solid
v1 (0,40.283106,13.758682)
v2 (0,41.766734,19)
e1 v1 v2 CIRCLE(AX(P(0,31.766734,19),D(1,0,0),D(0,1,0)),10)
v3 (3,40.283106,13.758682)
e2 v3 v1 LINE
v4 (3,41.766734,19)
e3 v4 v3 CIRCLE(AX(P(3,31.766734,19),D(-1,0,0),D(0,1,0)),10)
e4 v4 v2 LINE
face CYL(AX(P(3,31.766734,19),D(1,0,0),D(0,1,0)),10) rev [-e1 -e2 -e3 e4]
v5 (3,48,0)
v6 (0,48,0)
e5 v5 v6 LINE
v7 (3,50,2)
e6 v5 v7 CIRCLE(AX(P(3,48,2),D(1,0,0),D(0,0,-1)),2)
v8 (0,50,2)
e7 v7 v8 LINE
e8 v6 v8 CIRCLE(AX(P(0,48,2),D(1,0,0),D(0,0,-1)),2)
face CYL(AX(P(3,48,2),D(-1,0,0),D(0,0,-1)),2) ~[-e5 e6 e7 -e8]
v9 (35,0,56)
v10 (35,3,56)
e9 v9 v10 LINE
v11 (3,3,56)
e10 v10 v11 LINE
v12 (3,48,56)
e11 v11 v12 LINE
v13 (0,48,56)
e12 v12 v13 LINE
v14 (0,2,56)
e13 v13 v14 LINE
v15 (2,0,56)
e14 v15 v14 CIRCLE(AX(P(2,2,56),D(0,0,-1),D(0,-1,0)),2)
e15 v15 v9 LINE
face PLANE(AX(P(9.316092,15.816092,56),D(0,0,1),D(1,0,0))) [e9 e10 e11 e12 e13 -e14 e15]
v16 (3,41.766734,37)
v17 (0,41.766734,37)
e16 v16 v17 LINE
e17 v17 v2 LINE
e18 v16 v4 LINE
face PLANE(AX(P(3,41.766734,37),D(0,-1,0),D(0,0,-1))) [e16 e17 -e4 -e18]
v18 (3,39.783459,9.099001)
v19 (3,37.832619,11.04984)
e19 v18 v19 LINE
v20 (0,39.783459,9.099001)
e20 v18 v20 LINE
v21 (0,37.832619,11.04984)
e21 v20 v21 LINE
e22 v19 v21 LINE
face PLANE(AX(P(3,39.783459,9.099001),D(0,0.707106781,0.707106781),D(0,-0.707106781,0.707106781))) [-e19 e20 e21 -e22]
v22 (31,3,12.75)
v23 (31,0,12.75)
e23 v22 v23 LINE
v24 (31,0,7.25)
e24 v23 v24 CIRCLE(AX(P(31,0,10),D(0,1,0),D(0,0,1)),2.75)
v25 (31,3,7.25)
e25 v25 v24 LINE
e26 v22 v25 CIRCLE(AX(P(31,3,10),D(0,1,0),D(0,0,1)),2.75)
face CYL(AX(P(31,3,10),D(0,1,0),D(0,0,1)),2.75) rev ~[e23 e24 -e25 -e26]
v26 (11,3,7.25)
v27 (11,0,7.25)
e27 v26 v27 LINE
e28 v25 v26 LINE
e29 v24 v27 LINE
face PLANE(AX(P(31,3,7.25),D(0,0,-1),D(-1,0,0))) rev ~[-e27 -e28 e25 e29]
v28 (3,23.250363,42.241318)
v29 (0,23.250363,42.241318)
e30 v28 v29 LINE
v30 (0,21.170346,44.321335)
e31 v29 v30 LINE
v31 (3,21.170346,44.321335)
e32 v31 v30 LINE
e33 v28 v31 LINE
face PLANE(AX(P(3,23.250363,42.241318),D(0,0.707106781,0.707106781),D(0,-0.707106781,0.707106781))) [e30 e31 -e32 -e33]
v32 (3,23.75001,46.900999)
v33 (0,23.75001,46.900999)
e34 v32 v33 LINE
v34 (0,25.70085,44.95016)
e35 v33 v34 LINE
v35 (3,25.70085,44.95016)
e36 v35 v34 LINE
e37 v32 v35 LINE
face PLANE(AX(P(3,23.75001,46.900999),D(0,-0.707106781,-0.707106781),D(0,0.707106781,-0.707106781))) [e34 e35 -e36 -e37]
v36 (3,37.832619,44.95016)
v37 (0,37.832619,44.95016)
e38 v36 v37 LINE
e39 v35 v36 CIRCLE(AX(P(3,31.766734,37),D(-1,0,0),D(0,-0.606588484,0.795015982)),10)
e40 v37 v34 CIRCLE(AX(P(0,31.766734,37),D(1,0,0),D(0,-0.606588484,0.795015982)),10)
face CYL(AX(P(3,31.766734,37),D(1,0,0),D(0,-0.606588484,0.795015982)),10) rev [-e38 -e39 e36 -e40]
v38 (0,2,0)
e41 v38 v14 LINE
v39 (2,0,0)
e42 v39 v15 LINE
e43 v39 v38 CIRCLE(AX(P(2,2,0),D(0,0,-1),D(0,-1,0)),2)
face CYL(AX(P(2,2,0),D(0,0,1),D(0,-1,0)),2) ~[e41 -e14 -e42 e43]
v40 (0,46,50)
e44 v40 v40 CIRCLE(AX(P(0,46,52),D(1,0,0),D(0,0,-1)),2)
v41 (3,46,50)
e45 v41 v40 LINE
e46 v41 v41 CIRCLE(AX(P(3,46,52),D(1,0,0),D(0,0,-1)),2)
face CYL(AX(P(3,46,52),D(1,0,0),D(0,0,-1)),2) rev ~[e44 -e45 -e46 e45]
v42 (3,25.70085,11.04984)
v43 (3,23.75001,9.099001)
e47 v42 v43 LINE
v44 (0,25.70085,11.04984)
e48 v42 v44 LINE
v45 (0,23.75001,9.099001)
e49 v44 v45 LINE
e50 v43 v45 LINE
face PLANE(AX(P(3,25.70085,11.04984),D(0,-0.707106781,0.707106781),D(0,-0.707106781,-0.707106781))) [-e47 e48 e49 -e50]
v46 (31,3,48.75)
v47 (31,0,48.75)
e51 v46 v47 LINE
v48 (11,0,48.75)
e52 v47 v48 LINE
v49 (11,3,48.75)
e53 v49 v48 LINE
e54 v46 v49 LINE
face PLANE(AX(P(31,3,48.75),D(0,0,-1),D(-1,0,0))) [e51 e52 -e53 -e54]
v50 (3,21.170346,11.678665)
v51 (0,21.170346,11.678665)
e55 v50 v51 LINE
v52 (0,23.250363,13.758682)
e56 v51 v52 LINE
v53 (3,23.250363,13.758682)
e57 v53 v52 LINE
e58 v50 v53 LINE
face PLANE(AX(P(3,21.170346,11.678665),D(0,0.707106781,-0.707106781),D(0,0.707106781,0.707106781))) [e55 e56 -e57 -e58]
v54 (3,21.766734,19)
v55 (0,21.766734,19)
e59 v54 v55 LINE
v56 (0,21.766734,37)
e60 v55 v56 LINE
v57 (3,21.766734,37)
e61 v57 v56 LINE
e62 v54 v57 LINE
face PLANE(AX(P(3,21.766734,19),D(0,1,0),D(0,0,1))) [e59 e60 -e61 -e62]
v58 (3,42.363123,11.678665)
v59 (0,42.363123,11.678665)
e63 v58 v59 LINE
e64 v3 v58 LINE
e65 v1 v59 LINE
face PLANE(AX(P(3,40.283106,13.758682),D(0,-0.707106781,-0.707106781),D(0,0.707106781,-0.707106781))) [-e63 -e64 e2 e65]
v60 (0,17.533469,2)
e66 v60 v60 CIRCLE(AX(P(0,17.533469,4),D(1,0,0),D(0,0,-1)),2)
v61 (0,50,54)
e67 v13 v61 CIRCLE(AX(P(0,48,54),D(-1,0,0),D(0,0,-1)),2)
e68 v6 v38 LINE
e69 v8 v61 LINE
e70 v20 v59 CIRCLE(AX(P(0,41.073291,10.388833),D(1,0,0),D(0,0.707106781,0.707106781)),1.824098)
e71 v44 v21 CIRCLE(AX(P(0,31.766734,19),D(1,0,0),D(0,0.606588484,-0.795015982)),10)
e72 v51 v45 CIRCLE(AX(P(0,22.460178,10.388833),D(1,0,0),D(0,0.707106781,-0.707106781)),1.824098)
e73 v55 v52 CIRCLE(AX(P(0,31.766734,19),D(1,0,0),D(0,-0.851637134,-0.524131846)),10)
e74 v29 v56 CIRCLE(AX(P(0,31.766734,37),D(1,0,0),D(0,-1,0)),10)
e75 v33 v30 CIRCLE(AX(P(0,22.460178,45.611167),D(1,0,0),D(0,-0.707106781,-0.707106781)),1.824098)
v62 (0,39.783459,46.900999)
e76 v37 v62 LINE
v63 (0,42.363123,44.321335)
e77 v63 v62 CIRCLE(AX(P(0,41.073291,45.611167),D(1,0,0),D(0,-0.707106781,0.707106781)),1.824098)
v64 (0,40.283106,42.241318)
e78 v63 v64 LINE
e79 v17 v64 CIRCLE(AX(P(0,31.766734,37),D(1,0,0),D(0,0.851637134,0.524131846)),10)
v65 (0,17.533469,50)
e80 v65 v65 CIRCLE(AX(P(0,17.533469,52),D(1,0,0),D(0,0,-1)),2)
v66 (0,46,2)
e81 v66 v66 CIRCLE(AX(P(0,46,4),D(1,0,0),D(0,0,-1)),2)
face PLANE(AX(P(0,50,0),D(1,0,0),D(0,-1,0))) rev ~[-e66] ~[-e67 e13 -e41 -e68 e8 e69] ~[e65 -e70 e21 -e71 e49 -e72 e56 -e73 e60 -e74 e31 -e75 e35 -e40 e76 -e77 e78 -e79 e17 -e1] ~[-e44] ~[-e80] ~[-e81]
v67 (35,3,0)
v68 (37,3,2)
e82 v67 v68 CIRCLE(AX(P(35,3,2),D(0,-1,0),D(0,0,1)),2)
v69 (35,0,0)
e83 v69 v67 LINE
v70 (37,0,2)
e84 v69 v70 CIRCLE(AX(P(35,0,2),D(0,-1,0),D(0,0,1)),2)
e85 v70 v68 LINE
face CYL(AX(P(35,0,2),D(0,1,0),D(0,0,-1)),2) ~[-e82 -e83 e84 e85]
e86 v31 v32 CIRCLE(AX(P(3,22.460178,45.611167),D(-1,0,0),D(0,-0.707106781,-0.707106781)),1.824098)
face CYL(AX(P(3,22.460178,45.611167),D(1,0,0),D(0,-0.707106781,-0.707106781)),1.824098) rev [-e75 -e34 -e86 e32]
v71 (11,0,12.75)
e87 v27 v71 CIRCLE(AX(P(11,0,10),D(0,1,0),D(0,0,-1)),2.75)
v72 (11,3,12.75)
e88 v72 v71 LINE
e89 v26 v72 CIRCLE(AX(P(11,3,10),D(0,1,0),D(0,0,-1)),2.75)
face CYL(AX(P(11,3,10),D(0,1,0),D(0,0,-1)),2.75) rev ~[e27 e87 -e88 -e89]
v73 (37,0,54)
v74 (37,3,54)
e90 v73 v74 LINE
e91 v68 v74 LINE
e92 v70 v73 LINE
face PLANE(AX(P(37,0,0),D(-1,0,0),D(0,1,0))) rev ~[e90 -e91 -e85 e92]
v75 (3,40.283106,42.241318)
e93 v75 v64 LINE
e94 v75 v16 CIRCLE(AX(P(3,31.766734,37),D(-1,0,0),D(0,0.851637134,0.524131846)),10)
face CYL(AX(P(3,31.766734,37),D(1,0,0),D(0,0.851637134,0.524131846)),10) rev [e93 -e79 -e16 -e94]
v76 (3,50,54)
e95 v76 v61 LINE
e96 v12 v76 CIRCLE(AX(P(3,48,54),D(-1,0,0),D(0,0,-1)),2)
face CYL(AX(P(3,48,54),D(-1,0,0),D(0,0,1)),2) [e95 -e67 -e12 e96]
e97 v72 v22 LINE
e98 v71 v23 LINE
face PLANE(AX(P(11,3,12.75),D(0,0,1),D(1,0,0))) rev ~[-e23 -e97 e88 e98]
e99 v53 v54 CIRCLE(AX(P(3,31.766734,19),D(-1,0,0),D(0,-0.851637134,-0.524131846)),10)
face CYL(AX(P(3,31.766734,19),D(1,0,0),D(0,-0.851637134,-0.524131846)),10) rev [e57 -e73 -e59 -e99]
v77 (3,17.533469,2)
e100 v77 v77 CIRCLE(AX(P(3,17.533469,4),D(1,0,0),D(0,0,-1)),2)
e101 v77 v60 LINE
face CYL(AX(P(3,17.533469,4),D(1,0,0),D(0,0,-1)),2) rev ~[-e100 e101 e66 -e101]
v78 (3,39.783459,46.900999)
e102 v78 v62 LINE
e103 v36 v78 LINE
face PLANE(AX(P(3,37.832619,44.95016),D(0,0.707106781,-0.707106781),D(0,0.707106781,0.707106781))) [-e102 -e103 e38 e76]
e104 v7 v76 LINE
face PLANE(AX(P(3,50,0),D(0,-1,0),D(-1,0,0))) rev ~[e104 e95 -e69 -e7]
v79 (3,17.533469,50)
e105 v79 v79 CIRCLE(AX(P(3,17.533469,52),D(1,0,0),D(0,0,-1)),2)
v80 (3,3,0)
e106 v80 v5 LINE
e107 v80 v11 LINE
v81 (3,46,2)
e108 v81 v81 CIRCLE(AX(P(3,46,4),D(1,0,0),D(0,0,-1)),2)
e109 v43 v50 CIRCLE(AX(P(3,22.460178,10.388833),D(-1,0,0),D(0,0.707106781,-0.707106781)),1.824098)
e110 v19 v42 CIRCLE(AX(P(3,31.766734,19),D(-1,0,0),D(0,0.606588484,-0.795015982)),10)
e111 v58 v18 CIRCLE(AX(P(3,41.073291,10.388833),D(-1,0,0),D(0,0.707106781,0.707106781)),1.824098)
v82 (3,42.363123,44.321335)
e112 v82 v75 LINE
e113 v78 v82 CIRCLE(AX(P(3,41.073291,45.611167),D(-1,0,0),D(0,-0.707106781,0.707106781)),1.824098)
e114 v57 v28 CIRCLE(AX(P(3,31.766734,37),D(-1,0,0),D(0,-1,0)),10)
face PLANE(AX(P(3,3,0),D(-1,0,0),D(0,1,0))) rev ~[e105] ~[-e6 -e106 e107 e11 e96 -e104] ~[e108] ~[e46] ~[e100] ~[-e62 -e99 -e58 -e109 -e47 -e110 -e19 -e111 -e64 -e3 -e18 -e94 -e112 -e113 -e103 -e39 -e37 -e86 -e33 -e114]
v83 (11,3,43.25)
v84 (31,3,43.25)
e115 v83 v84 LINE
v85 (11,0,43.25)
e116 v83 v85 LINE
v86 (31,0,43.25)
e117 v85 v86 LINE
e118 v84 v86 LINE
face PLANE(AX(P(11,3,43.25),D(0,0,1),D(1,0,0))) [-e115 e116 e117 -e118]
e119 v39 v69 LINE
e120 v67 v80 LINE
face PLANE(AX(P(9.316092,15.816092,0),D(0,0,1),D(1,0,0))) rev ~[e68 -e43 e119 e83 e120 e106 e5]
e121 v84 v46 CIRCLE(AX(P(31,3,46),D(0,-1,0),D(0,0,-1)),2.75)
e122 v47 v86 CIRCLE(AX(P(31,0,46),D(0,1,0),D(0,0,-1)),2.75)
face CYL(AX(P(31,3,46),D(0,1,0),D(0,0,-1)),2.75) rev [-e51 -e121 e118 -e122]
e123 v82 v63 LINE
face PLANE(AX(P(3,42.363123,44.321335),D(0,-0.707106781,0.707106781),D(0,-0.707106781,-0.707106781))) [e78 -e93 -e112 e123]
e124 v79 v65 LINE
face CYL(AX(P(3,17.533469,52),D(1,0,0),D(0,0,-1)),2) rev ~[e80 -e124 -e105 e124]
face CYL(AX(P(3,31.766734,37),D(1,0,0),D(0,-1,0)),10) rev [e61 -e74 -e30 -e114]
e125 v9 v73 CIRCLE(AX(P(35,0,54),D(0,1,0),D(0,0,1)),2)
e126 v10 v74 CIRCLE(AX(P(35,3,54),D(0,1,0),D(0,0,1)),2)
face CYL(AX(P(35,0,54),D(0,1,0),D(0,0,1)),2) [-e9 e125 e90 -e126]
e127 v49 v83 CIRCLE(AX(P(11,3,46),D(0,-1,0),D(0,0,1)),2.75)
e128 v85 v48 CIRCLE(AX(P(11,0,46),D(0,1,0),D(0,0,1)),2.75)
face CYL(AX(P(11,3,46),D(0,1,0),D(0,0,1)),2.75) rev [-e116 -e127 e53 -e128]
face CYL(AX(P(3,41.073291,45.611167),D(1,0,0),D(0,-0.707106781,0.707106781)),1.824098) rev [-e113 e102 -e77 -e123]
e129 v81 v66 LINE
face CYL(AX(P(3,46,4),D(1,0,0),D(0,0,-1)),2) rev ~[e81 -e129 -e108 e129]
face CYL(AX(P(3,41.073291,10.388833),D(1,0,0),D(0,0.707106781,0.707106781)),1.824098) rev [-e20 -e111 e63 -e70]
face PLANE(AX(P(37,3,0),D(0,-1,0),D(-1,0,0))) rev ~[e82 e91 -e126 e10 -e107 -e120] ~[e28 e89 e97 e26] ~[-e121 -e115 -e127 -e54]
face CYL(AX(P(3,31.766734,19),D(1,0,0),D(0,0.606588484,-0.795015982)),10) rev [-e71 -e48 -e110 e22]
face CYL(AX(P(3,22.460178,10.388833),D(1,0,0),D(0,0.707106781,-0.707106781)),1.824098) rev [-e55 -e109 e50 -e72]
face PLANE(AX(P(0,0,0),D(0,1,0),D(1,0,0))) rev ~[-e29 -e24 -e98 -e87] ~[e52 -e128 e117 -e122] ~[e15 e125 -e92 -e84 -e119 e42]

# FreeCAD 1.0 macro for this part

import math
import FreeCAD as App
import Part
import Sketcher
Q = App.Units.Quantity


def edges_at(feature, points):
    """Names of the edges that pass closest to the given points."""
    edges = feature.Shape.Edges
    near = lambda p: min(range(len(edges)), key=lambda i: edges[i].distToShape(Part.Vertex(*p))[0])
    return sorted({f"Edge{near(p) + 1}" for p in points})


def add_polygon(sketch, points):
    """Adds a closed chain of lines whose ends are joined by coincident constraints."""
    first, n = sketch.GeometryCount, len(points)
    for a, b in zip(points, points[1:] + points[:1]):
        sketch.addGeometry(Part.LineSegment(App.Vector(*a, 0), App.Vector(*b, 0)), False)
    for i in range(n):
        sketch.addConstraint(Sketcher.Constraint("Coincident", first + i, 2, first + (i + 1) % n, 1))

doc = App.newDocument("Part")
body = doc.addObject("PartDesign::Body", "Body")

sketch1 = body.newObject("Sketcher::SketchObject", "Sketch")
sketch1.AttachmentSupport = (doc.getObject("XY_Plane"), [""])
sketch1.MapMode = "FlatFace"
add_polygon(sketch1, [(0, 0), (37, 0), (37, 3), (3, 3), (3, 50), (0, 50)])
sketch1.addConstraint([
    Sketcher.Constraint("Horizontal", 0),
    Sketcher.Constraint("Vertical", 1),
    Sketcher.Constraint("Horizontal", 2),
    Sketcher.Constraint("Vertical", 3),
    Sketcher.Constraint("Horizontal", 4),
    Sketcher.Constraint("Vertical", 5),
    Sketcher.Constraint("Coincident", 5, 2, -1, 1),
    Sketcher.Constraint("Equal", 4, 1),
    Sketcher.Constraint("DistanceX", 0, 1, 0, 2, Q("37 mm")),
    Sketcher.Constraint("DistanceX", 2, 2, 2, 1, Q("34 mm")),
    Sketcher.Constraint("DistanceY", 3, 1, 3, 2, Q("47 mm")),
])
pad1 = body.newObject("PartDesign::Pad", "Pad")
pad1.Profile = sketch1
pad1.Length = 56

sketch2 = body.newObject("Sketcher::SketchObject", "Sketch001")
sketch2.AttachmentSupport = (doc.getObject("XZ_Plane"), [""])
sketch2.MapMode = "FlatFace"
sketch2.AttachmentOffset = App.Placement(App.Vector(0, 0, -3), App.Rotation())
sketch2.addGeometry([
    Part.LineSegment(App.Vector(11, 12.75, 0), App.Vector(31, 12.75, 0)),
    Part.ArcOfCircle(Part.Circle(App.Vector(31, 10, 0), App.Vector(0, 0, 1), 2.75), math.radians(-90), math.radians(90)),
    Part.LineSegment(App.Vector(31, 7.25, 0), App.Vector(11, 7.25, 0)),
    Part.ArcOfCircle(Part.Circle(App.Vector(11, 10, 0), App.Vector(0, 0, 1), 2.75), math.radians(90), math.radians(270)),
    Part.LineSegment(App.Vector(31, 43.25, 0), App.Vector(11, 43.25, 0)),
    Part.ArcOfCircle(Part.Circle(App.Vector(11, 46, 0), App.Vector(0, 0, 1), 2.75), math.radians(90), math.radians(270)),
    Part.LineSegment(App.Vector(11, 48.75, 0), App.Vector(31, 48.75, 0)),
    Part.ArcOfCircle(Part.Circle(App.Vector(31, 46, 0), App.Vector(0, 0, 1), 2.75), math.radians(-90), math.radians(90)),
], False)
sketch2.addConstraint([
    Sketcher.Constraint("Tangent", 0, 2, 1, 2),
    Sketcher.Constraint("Tangent", 1, 1, 2, 1),
    Sketcher.Constraint("Tangent", 2, 2, 3, 2),
    Sketcher.Constraint("Tangent", 3, 1, 0, 1),
    Sketcher.Constraint("Tangent", 4, 2, 5, 2),
    Sketcher.Constraint("Tangent", 5, 1, 6, 1),
    Sketcher.Constraint("Tangent", 6, 2, 7, 2),
    Sketcher.Constraint("Tangent", 7, 1, 4, 1),
    Sketcher.Constraint("Horizontal", 0),
    Sketcher.Constraint("Horizontal", 2),
    Sketcher.Constraint("Horizontal", 4),
    Sketcher.Constraint("Horizontal", 6),
    Sketcher.Constraint("Equal", 3, 5),
    Sketcher.Constraint("Vertical", 3, 3, 5, 3),
    Sketcher.Constraint("Vertical", 1, 3, 7, 3),
    Sketcher.Constraint("DistanceX", 0, 1, 0, 2, Q("20 mm")),
    Sketcher.Constraint("Radius", 1, Q("2.75 mm")),
    Sketcher.Constraint("DistanceX", -1, 1, 1, 3, Q("31 mm")),
    Sketcher.Constraint("DistanceY", -1, 1, 1, 3, Q("10 mm")),
    Sketcher.Constraint("DistanceY", -1, 1, 5, 3, Q("46 mm")),
])
pocket1 = body.newObject("PartDesign::Pocket", "Pocket")
pocket1.Profile = sketch2
pocket1.Length = 56
pocket1.Reversed = True

sketch3 = body.newObject("Sketcher::SketchObject", "Sketch002")
sketch3.AttachmentSupport = (doc.getObject("YZ_Plane"), [""])
sketch3.MapMode = "FlatFace"
sketch3.AttachmentOffset = App.Placement(App.Vector(0, 0, 3), App.Rotation())
sketch3.addGeometry([
    Part.Circle(App.Vector(46, 52, 0), App.Vector(0, 0, 1), 2),
    Part.Circle(App.Vector(46, 4, 0), App.Vector(0, 0, 1), 2),
    Part.Circle(App.Vector(17.533469, 4, 0), App.Vector(0, 0, 1), 2),
    Part.Circle(App.Vector(17.533469, 52, 0), App.Vector(0, 0, 1), 2),
    Part.LineSegment(App.Vector(41.766734, 19, 0), App.Vector(41.766734, 37, 0)),
    Part.ArcOfCircle(Part.Circle(App.Vector(31.766734, 37, 0), App.Vector(0, 0, 1), 10), math.radians(0), math.radians(31.609818)),
    Part.LineSegment(App.Vector(40.283106, 42.241318, 0), App.Vector(42.363123, 44.321335, 0)),
    Part.ArcOfCircle(Part.Circle(App.Vector(41.073291, 45.611167, 0), App.Vector(0, 0, 1), 1.824098), math.radians(-45), math.radians(135)),
    Part.LineSegment(App.Vector(39.783459, 46.900999, 0), App.Vector(37.832619, 44.95016, 0)),
    Part.ArcOfCircle(Part.Circle(App.Vector(31.766734, 37, 0), App.Vector(0, 0, 1), 10), math.radians(52.656765), math.radians(127.343235)),
    Part.LineSegment(App.Vector(25.70085, 44.95016, 0), App.Vector(23.75001, 46.900999, 0)),
    Part.ArcOfCircle(Part.Circle(App.Vector(22.460178, 45.611167, 0), App.Vector(0, 0, 1), 1.824098), math.radians(45), math.radians(225)),
    Part.LineSegment(App.Vector(21.170346, 44.321335, 0), App.Vector(23.250363, 42.241318, 0)),
    Part.ArcOfCircle(Part.Circle(App.Vector(31.766734, 37, 0), App.Vector(0, 0, 1), 10), math.radians(148.390182), math.radians(180)),
    Part.LineSegment(App.Vector(21.766734, 37, 0), App.Vector(21.766734, 19, 0)),
    Part.ArcOfCircle(Part.Circle(App.Vector(31.766734, 19, 0), App.Vector(0, 0, 1), 10), math.radians(-180), math.radians(-148.390182)),
    Part.LineSegment(App.Vector(23.250363, 13.758682, 0), App.Vector(21.170346, 11.678665, 0)),
    Part.ArcOfCircle(Part.Circle(App.Vector(22.460178, 10.388833, 0), App.Vector(0, 0, 1), 1.824098), math.radians(135), math.radians(315)),
    Part.LineSegment(App.Vector(23.75001, 9.099001, 0), App.Vector(25.70085, 11.04984, 0)),
    Part.ArcOfCircle(Part.Circle(App.Vector(31.766734, 19, 0), App.Vector(0, 0, 1), 10), math.radians(-127.343235), math.radians(-52.656765)),
    Part.LineSegment(App.Vector(37.832619, 11.04984, 0), App.Vector(39.783459, 9.099001, 0)),
    Part.ArcOfCircle(Part.Circle(App.Vector(41.073291, 10.388833, 0), App.Vector(0, 0, 1), 1.824098), math.radians(-135), math.radians(45)),
    Part.LineSegment(App.Vector(42.363123, 11.678665, 0), App.Vector(40.283106, 13.758682, 0)),
    Part.ArcOfCircle(Part.Circle(App.Vector(31.766734, 19, 0), App.Vector(0, 0, 1), 10), math.radians(-31.609818), math.radians(0)),
], False)
sketch3.addConstraint([
    Sketcher.Constraint("Tangent", 4, 2, 5, 1),
    Sketcher.Constraint("Coincident", 5, 2, 6, 1),
    Sketcher.Constraint("Tangent", 6, 2, 7, 1),
    Sketcher.Constraint("Tangent", 7, 2, 8, 1),
    Sketcher.Constraint("Coincident", 8, 2, 9, 1),
    Sketcher.Constraint("Coincident", 9, 2, 10, 1),
    Sketcher.Constraint("Tangent", 10, 2, 11, 1),
    Sketcher.Constraint("Tangent", 11, 2, 12, 1),
    Sketcher.Constraint("Coincident", 12, 2, 13, 1),
    Sketcher.Constraint("Tangent", 13, 2, 14, 1),
    Sketcher.Constraint("Tangent", 14, 2, 15, 1),
    Sketcher.Constraint("Coincident", 15, 2, 16, 1),
    Sketcher.Constraint("Tangent", 16, 2, 17, 1),
    Sketcher.Constraint("Tangent", 17, 2, 18, 1),
    Sketcher.Constraint("Coincident", 18, 2, 19, 1),
    Sketcher.Constraint("Coincident", 19, 2, 20, 1),
    Sketcher.Constraint("Tangent", 20, 2, 21, 1),
    Sketcher.Constraint("Tangent", 21, 2, 22, 1),
    Sketcher.Constraint("Coincident", 22, 2, 23, 1),
    Sketcher.Constraint("Tangent", 23, 2, 4, 1),
    Sketcher.Constraint("Vertical", 4),
    Sketcher.Constraint("Vertical", 14),
    Sketcher.Constraint("Coincident", 9, 3, 5, 3),
    Sketcher.Constraint("Coincident", 13, 3, 5, 3),
    Sketcher.Constraint("Coincident", 19, 3, 15, 3),
    Sketcher.Constraint("Coincident", 23, 3, 15, 3),
    Sketcher.Constraint("Equal", 0, 1),
    Sketcher.Constraint("Equal", 1, 2),
    Sketcher.Constraint("Equal", 2, 3),
    Sketcher.Constraint("Equal", 5, 9),
    Sketcher.Constraint("Equal", 7, 11),
    Sketcher.Constraint("Equal", 9, 13),
    Sketcher.Constraint("Equal", 13, 15),
    Sketcher.Constraint("Equal", 11, 17),
    Sketcher.Constraint("Equal", 15, 19),
    Sketcher.Constraint("Equal", 17, 21),
    Sketcher.Constraint("Parallel", 6, 8),
    Sketcher.Constraint("Perpendicular", 8, 10),
    Sketcher.Constraint("Parallel", 10, 12),
    Sketcher.Constraint("Perpendicular", 12, 16),
    Sketcher.Constraint("Parallel", 16, 18),
    Sketcher.Constraint("Perpendicular", 18, 20),
    Sketcher.Constraint("Parallel", 20, 22),
    Sketcher.Constraint("Horizontal", 1, 3, 2, 3),
    Sketcher.Constraint("Horizontal", 0, 3, 3, 3),
    Sketcher.Constraint("Horizontal", 7, 3, 11, 3),
    Sketcher.Constraint("Horizontal", 17, 3, 21, 3),
    Sketcher.Constraint("Horizontal", 8, 2, 9, 2),
    Sketcher.Constraint("Horizontal", 7, 2, 10, 2),
    Sketcher.Constraint("Horizontal", 18, 2, 19, 2),
    Sketcher.Constraint("Vertical", 0, 3, 1, 3),
    Sketcher.Constraint("Vertical", 2, 3, 3, 3),
    Sketcher.Constraint("Vertical", 11, 3, 17, 3),
    Sketcher.Constraint("Vertical", 12, 2, 15, 2),
    Sketcher.Constraint("Diameter", 0, Q("4 mm")),
    Sketcher.Constraint("Radius", 5, Q("10 mm")),
    Sketcher.Constraint("DistanceY", 4, 1, 4, 2, Q("18 mm")),
    Sketcher.Constraint("DistanceX", -1, 1, 0, 3, Q("46 mm")),
    Sketcher.Constraint("DistanceY", -1, 1, 0, 3, Q("52 mm")),
    Sketcher.Constraint("DistanceY", -1, 1, 1, 3, Q("4 mm")),
    Sketcher.Constraint("DistanceY", -1, 1, 5, 3, Q("37 mm")),
    Sketcher.Constraint("DistanceY", -1, 1, 7, 2, Q("46.900999 mm")),
    Sketcher.Constraint("Radius", 7, Q("1.824098 mm")),
    Sketcher.Constraint("DistanceX", -1, 1, 2, 3, Q("17.533469 mm")),
    Sketcher.Constraint("DistanceX", -1, 1, 7, 3, Q("41.073291 mm")),
    Sketcher.Constraint("DistanceX", -1, 1, 11, 3, Q("22.460178 mm")),
])
pocket2 = body.newObject("PartDesign::Pocket", "Pocket001")
pocket2.Profile = sketch3
pocket2.Type = "ThroughAll"
doc.recompute()

fillet = body.newObject("PartDesign::Fillet", "Fillet")
fillet.Base = (pocket2, edges_at(pocket2, [
    (37, 1.5, 56),
    (0, 0, 28),
    (1.5, 50, 56),
    (1.5, 50, 0),
    (37, 1.5, 0),
]))
fillet.Radius = 2

doc.recompute()
